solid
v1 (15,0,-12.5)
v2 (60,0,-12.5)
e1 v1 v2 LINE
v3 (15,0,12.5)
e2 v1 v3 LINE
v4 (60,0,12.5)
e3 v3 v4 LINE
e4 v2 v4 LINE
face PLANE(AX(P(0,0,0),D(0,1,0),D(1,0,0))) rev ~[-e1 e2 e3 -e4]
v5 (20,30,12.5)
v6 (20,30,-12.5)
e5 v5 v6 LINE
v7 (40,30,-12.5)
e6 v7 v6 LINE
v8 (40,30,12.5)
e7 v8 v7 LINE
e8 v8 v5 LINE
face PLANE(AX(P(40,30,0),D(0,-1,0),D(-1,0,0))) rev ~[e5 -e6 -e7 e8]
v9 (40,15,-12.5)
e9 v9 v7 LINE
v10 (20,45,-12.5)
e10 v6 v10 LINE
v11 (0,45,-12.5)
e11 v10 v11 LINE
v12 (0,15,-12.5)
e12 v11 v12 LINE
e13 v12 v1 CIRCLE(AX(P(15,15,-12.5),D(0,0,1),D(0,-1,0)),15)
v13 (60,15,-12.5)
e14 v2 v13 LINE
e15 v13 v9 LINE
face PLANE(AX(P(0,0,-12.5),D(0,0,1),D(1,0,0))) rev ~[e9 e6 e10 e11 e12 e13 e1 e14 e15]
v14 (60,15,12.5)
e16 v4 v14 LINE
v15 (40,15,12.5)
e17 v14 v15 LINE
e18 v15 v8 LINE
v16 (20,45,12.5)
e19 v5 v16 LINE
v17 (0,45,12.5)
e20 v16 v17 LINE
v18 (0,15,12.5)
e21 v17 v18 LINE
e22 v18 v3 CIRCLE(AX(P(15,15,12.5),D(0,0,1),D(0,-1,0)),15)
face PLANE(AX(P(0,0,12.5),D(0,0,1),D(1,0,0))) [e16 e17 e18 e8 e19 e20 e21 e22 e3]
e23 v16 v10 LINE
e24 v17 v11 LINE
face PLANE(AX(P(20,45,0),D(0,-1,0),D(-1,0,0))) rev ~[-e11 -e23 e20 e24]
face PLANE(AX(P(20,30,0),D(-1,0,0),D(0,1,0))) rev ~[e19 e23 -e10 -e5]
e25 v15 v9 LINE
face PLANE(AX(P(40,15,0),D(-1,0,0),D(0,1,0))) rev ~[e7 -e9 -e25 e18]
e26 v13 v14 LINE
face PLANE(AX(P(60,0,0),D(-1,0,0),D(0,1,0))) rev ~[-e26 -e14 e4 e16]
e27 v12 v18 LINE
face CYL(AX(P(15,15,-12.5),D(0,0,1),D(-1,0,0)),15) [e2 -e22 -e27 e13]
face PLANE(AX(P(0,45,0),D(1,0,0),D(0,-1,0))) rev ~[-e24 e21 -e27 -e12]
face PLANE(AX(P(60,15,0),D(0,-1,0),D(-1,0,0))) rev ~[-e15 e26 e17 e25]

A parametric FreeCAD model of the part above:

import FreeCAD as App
import Part
import Sketcher
Q = App.Units.Quantity


def edges_at(feature, points):
    """Names of the edges that pass closest to the given points."""
    edges = feature.Shape.Edges
    near = lambda p: min(range(len(edges)), key=lambda i: edges[i].distToShape(Part.Vertex(*p))[0])
    return sorted({f"Edge{near(p) + 1}" for p in points})


def add_polygon(sketch, points):
    """Adds a closed chain of lines whose ends are joined by coincident constraints."""
    first, n = sketch.GeometryCount, len(points)
    for a, b in zip(points, points[1:] + points[:1]):
        sketch.addGeometry(Part.LineSegment(App.Vector(*a, 0), App.Vector(*b, 0)), False)
    for i in range(n):
        sketch.addConstraint(Sketcher.Constraint("Coincident", first + i, 2, first + (i + 1) % n, 1))

doc = App.newDocument("Part")
body = doc.addObject("PartDesign::Body", "Body")

# Sketch on XY plane
sketch1 = doc.addObject("Sketcher::SketchObject", "Sketch")
body.addObject(sketch1)
sketch1.AttachmentSupport = (doc.XY_Plane, [""])
sketch1.MapMode = "FlatFace"
add_polygon(sketch1, [(0, 45), (0, 0), (60, 0), (60, 15), (40, 15), (40, 30), (20, 30), (20, 45)])  # lines 0-7
sketch1.addConstraint(Sketcher.Constraint("Vertical", 0))
sketch1.addConstraint(Sketcher.Constraint("Horizontal", 1))
sketch1.addConstraint(Sketcher.Constraint("Vertical", 2))
sketch1.addConstraint(Sketcher.Constraint("Horizontal", 3))
sketch1.addConstraint(Sketcher.Constraint("Vertical", 4))
sketch1.addConstraint(Sketcher.Constraint("Horizontal", 5))
sketch1.addConstraint(Sketcher.Constraint("Vertical", 6))
sketch1.addConstraint(Sketcher.Constraint("Horizontal", 7))
sketch1.addConstraint(Sketcher.Constraint("Coincident", 0, 2, -1, 1))
sketch1.addConstraint(Sketcher.Constraint("Equal", 3, 5))
sketch1.addConstraint(Sketcher.Constraint("Equal", 5, 7))
sketch1.addConstraint(Sketcher.Constraint("Equal", 2, 4))
sketch1.addConstraint(Sketcher.Constraint("Equal", 4, 6))
sketch1.addConstraint(Sketcher.Constraint("DistanceX", 1, 1, 1, 2, Q("60 mm")))
sketch1.addConstraint(Sketcher.Constraint("DistanceY", 0, 2, 0, 1, Q("45 mm")))
pad1 = doc.addObject("PartDesign::Pad", "Pad")
body.addObject(pad1)
pad1.Profile = sketch1
pad1.Length = 25
pad1.Midplane = True
doc.recompute()

fillet = doc.addObject("PartDesign::Fillet", "Fillet")
body.addObject(fillet)
fillet.Base = (pad1, edges_at(pad1, [(0, 0, 0)]))
fillet.Radius = 15

doc.recompute()
